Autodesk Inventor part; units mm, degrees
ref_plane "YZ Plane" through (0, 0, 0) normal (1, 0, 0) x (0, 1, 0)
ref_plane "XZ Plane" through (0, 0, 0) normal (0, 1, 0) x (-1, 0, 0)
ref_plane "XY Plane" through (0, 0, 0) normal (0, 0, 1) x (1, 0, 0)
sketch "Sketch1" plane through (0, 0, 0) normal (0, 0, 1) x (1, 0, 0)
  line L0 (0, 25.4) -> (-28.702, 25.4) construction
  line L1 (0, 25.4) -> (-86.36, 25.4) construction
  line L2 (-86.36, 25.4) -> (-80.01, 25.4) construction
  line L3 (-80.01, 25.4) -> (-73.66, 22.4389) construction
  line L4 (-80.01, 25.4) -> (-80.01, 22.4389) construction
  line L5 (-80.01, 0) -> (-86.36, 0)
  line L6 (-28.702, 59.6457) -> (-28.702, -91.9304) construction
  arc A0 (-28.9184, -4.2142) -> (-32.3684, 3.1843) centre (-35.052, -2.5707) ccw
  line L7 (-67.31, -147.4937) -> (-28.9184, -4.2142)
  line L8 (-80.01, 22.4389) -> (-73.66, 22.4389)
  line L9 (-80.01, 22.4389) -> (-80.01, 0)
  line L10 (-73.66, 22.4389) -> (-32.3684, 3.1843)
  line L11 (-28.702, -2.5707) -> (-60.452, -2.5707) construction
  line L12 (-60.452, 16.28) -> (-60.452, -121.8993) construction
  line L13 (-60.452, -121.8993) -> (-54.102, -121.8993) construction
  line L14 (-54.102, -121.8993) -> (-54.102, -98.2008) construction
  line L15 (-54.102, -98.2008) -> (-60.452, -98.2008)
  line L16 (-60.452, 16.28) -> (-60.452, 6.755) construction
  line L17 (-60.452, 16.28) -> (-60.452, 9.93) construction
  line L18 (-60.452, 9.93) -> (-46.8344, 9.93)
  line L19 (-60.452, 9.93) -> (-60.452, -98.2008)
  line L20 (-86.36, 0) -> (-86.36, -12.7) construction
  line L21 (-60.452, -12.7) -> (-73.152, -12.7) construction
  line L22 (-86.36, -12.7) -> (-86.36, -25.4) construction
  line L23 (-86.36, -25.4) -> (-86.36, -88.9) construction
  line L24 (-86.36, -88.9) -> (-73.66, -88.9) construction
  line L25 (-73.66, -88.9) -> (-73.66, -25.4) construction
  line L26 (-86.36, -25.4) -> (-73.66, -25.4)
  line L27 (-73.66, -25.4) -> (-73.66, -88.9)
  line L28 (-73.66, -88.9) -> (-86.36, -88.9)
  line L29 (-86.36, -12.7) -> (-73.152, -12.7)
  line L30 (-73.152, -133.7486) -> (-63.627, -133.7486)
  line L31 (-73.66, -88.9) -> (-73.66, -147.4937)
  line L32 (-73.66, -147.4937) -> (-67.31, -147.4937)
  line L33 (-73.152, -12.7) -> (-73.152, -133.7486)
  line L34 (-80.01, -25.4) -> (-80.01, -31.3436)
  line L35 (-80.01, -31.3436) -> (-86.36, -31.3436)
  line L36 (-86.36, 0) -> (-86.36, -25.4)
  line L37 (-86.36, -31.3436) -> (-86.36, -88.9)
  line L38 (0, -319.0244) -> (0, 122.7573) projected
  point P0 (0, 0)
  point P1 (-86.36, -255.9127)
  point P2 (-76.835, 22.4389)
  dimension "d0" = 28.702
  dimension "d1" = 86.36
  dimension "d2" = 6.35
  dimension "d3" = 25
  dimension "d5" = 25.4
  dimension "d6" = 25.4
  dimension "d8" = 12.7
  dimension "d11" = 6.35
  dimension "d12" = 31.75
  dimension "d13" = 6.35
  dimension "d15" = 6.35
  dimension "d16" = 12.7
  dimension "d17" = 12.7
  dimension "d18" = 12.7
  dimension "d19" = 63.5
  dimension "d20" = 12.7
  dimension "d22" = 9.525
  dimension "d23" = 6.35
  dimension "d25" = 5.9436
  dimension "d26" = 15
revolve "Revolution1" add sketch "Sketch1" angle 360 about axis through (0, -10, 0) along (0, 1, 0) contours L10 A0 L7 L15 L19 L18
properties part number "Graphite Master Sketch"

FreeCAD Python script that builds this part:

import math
import FreeCAD as App
import Part
import Sketcher
from FreeCAD import Vector
Q = App.Units.Quantity

doc = App.newDocument("Part")
params = doc.addObject("Spreadsheet::Sheet", "Params")
for row, (alias, value) in enumerate([
    ("sketch1_radius", "0.25 in"),
    ("sketch1_width", "0.25 in"),
    ("revolution_angle", "360 deg"),
], start=1):
    params.set(f"A{row}", alias)
    params.set(f"B{row}", "=" + value)
    params.setAlias(f"B{row}", alias)

body = doc.addObject("PartDesign::Body", "Body")

sketch1 = body.newObject("Sketcher::SketchObject", "Sketch")
sketch1.AttachmentSupport = (doc.getObject("XY_Plane"), [""])
sketch1.MapMode = "FlatFace"
sketch1.addGeometry(Part.LineSegment(Vector(-32.3684, 3.1843, 0), Vector(-46.834434, 9.929926, 0)), False)
sketch1.addGeometry(Part.LineSegment(Vector(-46.8344, 9.93, 0), Vector(-60.452, 9.93, 0)), False)
sketch1.addGeometry(Part.LineSegment(Vector(-60.452, 9.93, 0), Vector(-60.452, -98.2008, 0)), False)
sketch1.addGeometry(Part.LineSegment(Vector(-60.452, -98.2008, 0), Vector(-54.102, -98.2008, 0)), False)
sketch1.addGeometry(Part.LineSegment(Vector(-54.102015, -98.200796, 0), Vector(-28.9184, -4.2142, 0)), False)
sketch1.addGeometry(Part.ArcOfCircle(Part.Circle(Vector(-35.052, -2.5707, 0), Vector(0, 0, 1), 6.349972), math.radians(-15.00006), math.radians(65.000005)), False)
sketch1.addConstraint(Sketcher.Constraint("Coincident", 0, 2, 1, 1))
sketch1.addConstraint(Sketcher.Constraint("Coincident", 1, 2, 2, 1))
sketch1.addConstraint(Sketcher.Constraint("Coincident", 2, 2, 3, 1))
sketch1.addConstraint(Sketcher.Constraint("Coincident", 3, 2, 4, 1))
sketch1.addConstraint(Sketcher.Constraint("Tangent", 4, 2, 5, 1))
sketch1.addConstraint(Sketcher.Constraint("Tangent", 5, 2, 0, 1))
sketch1.addConstraint(Sketcher.Constraint("Horizontal", 1))
sketch1.addConstraint(Sketcher.Constraint("Vertical", 2))
sketch1.addConstraint(Sketcher.Constraint("Horizontal", 3))
sketch1.addConstraint(Sketcher.Constraint("Radius", 5, Q("0.25 in")))
sketch1.addConstraint(Sketcher.Constraint("DistanceX", 1, 2, 5, 3, Q("1 in")))
sketch1.addConstraint(Sketcher.Constraint("DistanceX", 3, 1, 3, 2, Q("0.25 in")))
sketch1.addConstraint(Sketcher.Constraint("Angle", 0, Q("155 deg")))
sketch1.addConstraint(Sketcher.Constraint("Angle", 4, Q("75 deg")))
sketch1.addConstraint(Sketcher.Constraint("DistanceX", 5, 3, -1, 1, Q("1.38 in")))
sketch1.addConstraint(Sketcher.Constraint("Distance", 0, Q("0.6284 in")))
sketch1.addConstraint(Sketcher.Constraint("DistanceY", 5, 3, -1, 1, Q("0.1012 in")))
sketch1.setExpression("Constraints[9]", "Params.sketch1_radius")
sketch1.setExpression("Constraints[11]", "Params.sketch1_width")
revolution = body.newObject("PartDesign::Revolution", "Revolution")
revolution.Profile = sketch1
revolution.ReferenceAxis = (sketch1, ["V_Axis"])
revolution.setExpression("Angle", "Params.revolution_angle")

doc.recompute()
